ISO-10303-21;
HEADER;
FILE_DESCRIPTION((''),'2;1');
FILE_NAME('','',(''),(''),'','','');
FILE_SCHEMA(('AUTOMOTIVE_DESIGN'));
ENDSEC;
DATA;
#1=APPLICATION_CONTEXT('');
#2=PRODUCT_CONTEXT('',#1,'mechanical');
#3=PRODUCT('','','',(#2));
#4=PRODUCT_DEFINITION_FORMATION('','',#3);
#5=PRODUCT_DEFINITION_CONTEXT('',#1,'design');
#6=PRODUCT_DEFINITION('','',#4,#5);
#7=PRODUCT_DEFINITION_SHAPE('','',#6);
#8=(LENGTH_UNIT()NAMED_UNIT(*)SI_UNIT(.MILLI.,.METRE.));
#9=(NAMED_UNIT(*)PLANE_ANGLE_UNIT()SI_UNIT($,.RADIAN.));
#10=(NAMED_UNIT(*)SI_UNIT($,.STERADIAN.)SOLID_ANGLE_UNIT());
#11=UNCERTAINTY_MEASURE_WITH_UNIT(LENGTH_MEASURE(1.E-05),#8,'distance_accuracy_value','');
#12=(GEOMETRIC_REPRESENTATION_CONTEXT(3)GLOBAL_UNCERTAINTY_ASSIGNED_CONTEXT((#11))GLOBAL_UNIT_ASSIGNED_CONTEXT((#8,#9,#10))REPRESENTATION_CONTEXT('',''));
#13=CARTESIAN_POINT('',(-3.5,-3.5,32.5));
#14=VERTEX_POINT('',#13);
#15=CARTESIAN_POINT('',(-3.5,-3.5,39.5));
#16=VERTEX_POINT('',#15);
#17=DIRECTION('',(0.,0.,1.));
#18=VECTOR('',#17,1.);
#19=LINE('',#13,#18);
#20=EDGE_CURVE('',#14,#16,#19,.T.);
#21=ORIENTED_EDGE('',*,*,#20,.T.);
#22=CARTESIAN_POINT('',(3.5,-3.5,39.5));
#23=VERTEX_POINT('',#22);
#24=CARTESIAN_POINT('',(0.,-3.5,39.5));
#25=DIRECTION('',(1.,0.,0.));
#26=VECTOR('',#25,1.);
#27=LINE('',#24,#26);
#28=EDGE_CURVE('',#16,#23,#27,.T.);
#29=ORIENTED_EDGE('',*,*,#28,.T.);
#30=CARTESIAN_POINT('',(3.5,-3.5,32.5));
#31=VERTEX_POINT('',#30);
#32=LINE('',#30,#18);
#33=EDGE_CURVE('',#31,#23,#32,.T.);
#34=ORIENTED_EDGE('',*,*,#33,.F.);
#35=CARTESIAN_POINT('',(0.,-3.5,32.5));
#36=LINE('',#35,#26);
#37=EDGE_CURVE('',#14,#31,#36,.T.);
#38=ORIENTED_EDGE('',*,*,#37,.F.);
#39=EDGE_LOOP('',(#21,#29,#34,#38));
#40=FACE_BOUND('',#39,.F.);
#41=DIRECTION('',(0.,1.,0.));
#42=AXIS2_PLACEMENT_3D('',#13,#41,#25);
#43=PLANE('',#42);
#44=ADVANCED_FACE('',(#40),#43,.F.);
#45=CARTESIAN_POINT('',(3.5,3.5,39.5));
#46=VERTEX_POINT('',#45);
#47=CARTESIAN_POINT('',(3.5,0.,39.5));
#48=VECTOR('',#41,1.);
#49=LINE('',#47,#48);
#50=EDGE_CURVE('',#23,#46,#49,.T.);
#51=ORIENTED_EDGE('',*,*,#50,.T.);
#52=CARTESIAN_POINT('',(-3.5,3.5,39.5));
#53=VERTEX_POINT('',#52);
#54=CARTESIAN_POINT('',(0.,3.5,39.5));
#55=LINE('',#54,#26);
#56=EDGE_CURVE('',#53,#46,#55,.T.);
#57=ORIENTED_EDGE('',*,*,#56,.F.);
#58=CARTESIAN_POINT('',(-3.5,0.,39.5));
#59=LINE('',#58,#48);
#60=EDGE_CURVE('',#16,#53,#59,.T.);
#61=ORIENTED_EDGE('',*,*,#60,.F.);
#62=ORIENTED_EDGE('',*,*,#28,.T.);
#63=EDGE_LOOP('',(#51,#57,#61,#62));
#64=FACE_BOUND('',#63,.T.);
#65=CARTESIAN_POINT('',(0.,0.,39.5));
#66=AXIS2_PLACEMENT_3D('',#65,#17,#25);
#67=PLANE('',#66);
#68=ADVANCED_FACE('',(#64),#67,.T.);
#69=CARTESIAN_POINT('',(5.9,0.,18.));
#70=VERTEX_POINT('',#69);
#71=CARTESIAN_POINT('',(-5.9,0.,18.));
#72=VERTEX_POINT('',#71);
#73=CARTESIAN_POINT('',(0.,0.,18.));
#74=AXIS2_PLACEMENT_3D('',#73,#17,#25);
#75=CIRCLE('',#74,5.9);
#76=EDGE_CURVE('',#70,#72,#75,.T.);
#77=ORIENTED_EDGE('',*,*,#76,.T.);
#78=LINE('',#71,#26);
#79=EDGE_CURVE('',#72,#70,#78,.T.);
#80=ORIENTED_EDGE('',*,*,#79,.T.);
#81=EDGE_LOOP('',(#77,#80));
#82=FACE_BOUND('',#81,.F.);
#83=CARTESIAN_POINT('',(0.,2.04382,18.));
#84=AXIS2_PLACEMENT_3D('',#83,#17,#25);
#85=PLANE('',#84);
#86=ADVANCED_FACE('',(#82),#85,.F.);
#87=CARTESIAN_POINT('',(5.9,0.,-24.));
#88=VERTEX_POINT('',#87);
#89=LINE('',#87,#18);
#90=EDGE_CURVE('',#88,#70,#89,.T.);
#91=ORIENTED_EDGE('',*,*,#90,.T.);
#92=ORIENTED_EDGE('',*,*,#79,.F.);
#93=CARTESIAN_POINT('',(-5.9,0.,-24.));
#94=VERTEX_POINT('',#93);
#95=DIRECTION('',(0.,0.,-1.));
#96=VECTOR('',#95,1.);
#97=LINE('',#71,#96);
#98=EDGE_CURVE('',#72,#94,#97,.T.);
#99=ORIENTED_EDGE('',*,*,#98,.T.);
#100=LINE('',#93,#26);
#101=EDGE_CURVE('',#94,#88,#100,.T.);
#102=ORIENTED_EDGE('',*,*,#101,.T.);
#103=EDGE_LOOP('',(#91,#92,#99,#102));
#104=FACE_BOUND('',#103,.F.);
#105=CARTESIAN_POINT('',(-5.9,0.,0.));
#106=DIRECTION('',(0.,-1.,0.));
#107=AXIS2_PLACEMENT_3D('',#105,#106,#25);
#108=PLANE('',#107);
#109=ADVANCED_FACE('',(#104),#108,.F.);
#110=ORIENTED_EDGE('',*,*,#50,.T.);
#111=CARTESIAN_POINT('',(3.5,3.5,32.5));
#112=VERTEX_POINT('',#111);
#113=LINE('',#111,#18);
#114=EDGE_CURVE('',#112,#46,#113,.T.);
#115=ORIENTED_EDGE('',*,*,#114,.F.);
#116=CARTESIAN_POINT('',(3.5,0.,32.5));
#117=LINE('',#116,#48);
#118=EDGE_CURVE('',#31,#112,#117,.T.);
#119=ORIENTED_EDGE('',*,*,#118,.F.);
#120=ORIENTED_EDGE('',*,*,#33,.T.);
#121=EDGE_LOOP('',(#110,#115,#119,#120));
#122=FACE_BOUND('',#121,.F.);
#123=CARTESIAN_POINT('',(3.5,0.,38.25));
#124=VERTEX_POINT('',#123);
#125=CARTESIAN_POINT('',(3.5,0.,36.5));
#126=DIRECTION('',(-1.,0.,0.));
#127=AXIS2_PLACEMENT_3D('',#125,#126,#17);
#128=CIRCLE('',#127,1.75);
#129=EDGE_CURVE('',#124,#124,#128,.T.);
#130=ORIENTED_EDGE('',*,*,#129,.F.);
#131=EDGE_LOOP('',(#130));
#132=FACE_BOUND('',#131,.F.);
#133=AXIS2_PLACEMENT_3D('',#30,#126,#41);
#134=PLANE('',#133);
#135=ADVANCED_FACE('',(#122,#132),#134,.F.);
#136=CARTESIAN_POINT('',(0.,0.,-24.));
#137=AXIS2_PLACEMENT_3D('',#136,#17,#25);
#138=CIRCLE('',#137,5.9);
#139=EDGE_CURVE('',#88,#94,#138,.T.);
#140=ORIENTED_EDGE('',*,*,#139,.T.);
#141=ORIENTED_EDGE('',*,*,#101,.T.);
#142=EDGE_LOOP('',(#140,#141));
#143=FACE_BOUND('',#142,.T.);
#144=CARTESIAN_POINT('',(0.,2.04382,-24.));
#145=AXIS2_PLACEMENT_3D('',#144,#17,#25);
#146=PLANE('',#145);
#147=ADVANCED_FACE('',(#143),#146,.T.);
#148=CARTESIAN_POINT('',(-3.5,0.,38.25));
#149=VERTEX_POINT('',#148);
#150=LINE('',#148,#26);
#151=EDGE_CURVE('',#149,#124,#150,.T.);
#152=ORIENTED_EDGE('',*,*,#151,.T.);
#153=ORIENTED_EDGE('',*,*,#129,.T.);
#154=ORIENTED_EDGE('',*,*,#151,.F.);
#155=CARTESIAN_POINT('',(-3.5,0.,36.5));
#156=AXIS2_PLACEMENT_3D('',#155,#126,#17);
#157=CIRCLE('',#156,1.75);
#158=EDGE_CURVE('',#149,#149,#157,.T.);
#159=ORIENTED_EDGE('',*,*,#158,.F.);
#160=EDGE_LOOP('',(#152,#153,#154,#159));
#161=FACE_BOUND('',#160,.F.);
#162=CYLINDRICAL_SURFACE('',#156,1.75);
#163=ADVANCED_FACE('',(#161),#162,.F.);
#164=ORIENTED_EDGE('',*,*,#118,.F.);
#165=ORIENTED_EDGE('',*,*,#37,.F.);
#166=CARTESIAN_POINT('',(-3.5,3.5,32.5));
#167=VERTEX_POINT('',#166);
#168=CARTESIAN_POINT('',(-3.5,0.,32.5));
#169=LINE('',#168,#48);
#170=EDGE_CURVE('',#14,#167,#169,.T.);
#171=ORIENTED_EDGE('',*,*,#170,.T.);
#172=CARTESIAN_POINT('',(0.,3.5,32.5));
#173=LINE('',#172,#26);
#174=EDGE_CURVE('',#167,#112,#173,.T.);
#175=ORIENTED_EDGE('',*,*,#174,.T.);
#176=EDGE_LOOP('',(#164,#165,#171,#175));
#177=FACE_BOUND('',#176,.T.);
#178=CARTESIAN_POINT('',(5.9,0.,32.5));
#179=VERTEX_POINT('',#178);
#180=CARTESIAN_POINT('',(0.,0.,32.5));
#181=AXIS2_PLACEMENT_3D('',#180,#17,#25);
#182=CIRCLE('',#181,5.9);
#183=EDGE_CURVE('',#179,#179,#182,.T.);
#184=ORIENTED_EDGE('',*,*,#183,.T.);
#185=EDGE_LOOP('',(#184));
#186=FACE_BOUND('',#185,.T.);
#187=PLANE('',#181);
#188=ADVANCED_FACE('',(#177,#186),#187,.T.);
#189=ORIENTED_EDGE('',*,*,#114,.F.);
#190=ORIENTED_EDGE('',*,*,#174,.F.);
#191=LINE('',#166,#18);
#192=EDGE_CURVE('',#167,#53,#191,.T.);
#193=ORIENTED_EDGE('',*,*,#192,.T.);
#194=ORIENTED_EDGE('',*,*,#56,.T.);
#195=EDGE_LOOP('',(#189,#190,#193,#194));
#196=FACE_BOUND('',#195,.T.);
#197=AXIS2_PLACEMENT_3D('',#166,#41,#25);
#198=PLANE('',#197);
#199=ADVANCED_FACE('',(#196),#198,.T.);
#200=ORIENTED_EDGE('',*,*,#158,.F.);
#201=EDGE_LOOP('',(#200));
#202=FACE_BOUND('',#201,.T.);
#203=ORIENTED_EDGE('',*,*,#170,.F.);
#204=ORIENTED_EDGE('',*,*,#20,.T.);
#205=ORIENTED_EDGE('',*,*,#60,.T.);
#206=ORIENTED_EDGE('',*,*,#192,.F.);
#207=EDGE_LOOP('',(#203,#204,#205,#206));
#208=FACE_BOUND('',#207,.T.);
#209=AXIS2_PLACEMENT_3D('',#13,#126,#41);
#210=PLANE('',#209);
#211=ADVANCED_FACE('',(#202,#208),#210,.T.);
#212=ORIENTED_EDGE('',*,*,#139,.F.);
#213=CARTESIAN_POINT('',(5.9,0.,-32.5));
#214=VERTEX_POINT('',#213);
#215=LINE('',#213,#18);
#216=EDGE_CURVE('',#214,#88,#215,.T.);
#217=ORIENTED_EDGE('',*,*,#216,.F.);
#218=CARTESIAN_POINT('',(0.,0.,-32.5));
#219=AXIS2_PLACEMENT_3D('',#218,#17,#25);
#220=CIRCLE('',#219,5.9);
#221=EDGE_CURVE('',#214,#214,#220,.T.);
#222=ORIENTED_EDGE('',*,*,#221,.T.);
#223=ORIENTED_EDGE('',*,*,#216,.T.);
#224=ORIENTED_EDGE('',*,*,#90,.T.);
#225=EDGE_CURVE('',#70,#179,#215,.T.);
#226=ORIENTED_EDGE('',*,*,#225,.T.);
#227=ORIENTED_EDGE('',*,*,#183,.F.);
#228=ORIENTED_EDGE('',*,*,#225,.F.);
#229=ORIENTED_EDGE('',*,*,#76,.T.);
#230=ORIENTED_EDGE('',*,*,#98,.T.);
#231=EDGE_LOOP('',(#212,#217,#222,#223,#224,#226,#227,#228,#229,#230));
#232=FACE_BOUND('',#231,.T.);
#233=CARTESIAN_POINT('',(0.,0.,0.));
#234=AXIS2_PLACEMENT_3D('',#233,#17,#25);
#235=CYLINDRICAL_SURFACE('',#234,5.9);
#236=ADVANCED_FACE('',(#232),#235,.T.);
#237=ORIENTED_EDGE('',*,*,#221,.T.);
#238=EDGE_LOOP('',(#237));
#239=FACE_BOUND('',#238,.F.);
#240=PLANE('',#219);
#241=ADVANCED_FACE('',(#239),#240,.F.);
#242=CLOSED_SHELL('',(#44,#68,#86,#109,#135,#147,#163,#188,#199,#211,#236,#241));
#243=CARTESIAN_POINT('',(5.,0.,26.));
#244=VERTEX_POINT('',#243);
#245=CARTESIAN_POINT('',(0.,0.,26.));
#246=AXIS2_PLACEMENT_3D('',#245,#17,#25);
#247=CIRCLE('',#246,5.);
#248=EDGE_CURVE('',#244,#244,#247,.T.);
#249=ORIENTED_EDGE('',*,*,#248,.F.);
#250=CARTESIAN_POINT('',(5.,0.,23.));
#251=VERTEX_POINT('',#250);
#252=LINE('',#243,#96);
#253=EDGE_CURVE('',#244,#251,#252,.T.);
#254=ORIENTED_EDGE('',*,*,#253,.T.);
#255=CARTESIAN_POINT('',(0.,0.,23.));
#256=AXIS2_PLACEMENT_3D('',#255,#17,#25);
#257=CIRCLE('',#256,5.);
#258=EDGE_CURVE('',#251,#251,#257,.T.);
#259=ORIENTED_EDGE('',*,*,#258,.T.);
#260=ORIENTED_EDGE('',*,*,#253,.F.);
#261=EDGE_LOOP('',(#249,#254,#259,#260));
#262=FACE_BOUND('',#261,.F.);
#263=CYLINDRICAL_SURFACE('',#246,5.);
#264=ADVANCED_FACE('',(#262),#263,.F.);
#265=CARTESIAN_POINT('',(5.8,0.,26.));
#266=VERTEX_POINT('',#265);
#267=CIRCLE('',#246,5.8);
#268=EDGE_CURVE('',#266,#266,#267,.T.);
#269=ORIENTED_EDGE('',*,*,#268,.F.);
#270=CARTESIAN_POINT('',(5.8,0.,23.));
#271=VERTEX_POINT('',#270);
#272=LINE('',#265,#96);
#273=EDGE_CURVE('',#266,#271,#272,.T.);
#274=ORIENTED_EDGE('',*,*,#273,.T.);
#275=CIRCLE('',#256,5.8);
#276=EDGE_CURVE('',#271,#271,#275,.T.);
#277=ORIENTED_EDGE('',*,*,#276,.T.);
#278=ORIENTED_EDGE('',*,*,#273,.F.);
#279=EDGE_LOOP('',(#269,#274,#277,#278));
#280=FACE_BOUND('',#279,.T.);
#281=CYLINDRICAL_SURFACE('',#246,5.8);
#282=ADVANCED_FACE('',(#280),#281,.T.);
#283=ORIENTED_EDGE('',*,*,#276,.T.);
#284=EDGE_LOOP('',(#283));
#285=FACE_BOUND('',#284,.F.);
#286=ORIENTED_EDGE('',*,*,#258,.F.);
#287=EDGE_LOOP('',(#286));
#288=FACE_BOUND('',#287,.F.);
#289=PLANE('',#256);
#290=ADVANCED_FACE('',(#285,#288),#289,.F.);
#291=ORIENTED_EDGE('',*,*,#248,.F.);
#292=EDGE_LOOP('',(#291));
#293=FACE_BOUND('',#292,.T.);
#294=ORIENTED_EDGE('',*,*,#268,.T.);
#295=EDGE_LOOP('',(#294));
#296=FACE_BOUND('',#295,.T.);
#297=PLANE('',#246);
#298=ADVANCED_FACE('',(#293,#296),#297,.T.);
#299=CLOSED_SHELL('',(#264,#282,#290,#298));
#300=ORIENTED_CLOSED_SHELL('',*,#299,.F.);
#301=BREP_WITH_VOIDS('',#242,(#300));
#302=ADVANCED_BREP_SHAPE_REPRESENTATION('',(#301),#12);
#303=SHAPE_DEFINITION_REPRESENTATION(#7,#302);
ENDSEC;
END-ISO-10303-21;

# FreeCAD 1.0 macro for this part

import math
import FreeCAD as App
import Part
import Sketcher
from FreeCAD import Vector

doc = App.newDocument("Part")
body = doc.addObject("PartDesign::Body", "Body")

# Sketch on XY plane
sketch1 = body.newObject("Sketcher::SketchObject", "Sketch")
sketch1.AttachmentSupport = (doc.getObject("XY_Plane"), [""])
sketch1.MapMode = "FlatFace"
sketch1.addGeometry(Part.Circle(Vector(0, 0, 0), Vector(0, 0, 1), 6), False)
sketch1.addConstraint([
    Sketcher.Constraint("Coincident", 0, 3, -1, 1),
    Sketcher.Constraint("Diameter", 0, 11.8),
])
pad1 = body.newObject("PartDesign::Pad", "Pad")
pad1.Profile = sketch1
pad1.Length = 65
pad1.Midplane = True

# Sketch on XY plane
sketch2 = body.newObject("Sketcher::SketchObject", "Sketch001")
sketch2.AttachmentSupport = (doc.getObject("XY_Plane"), [""])
sketch2.MapMode = "FlatFace"
sketch2.addGeometry([
    Part.LineSegment(Vector(-6, 0, 0), Vector(6, 0, 0)),
    Part.ArcOfCircle(Part.Circle(Vector(0, 0, 0), Vector(0, 0, 1), 6), math.radians(0), math.radians(180)),
], False)
sketch2.addConstraint([
    Sketcher.Constraint("Coincident", 0, 1, 1, 2),
    Sketcher.Constraint("Coincident", 1, 1, 0, 2),
    Sketcher.Constraint("Horizontal", 0),
    Sketcher.Constraint("Coincident", 1, 3, -1, 1),
    Sketcher.Constraint("PointOnObject", 0, 1, -1),
    Sketcher.Constraint("Radius", 1, 5.9),
])
pocket1 = body.newObject("PartDesign::Pocket", "Pocket")
pocket1.Profile = sketch2
pocket1.Length = 24

# Sketch on XY plane
sketch3 = body.newObject("Sketcher::SketchObject", "Sketch002")
sketch3.AttachmentSupport = (doc.getObject("XY_Plane"), [""])
sketch3.MapMode = "FlatFace"
sketch3.AttachmentOffset = App.Placement(Vector(0, 0, 26), App.Rotation())
sketch3.addGeometry([
    Part.Circle(Vector(0, 0, 0), Vector(0, 0, 1), 6),
    Part.Circle(Vector(0, 0, 0), Vector(0, 0, 1), 5),
], False)
sketch3.addConstraint([
    Sketcher.Constraint("Coincident", 0, 3, -1, 1),
    Sketcher.Constraint("Coincident", 1, 3, -1, 1),
    Sketcher.Constraint("Diameter", 1, 10.0),
    Sketcher.Constraint("Diameter", 0, 11.6),
])
pocket2 = body.newObject("PartDesign::Pocket", "Pocket001")
pocket2.Profile = sketch3
pocket2.Length = 3

# Sketch on XY plane
sketch4 = body.newObject("Sketcher::SketchObject", "Sketch003")
sketch4.AttachmentSupport = (doc.getObject("XY_Plane"), [""])
sketch4.MapMode = "FlatFace"
sketch4.AttachmentOffset = App.Placement(Vector(0, 0, 32.5), App.Rotation())
sketch4.addGeometry([
    Part.LineSegment(Vector(-4, 4, 0), Vector(-4, -4, 0)),
    Part.LineSegment(Vector(-4, -4, 0), Vector(4, -4, 0)),
    Part.LineSegment(Vector(4, -4, 0), Vector(4, 4, 0)),
    Part.LineSegment(Vector(4, 4, 0), Vector(-4, 4, 0)),
], False)
sketch4.addConstraint([
    Sketcher.Constraint("Coincident", 0, 2, 1, 1),
    Sketcher.Constraint("Coincident", 1, 2, 2, 1),
    Sketcher.Constraint("Coincident", 2, 2, 3, 1),
    Sketcher.Constraint("Coincident", 3, 2, 0, 1),
    Sketcher.Constraint("Vertical", 0),
    Sketcher.Constraint("Horizontal", 1),
    Sketcher.Constraint("Vertical", 2),
    Sketcher.Constraint("Horizontal", 3),
    Sketcher.Constraint("Symmetric", 0, 2, 2, 2, -1, 1),
    Sketcher.Constraint("Equal", 3, 0),
    Sketcher.Constraint("DistanceX", 1, 1, 1, 2, 7.0),
])
pad2 = body.newObject("PartDesign::Pad", "Pad001")
pad2.Profile = sketch4
pad2.Length = 7

# Sketch on YZ plane
sketch5 = body.newObject("Sketcher::SketchObject", "Sketch004")
sketch5.AttachmentSupport = (doc.getObject("YZ_Plane"), [""])
sketch5.MapMode = "FlatFace"
sketch5.AttachmentOffset = App.Placement(Vector(0, 0, -3.5), App.Rotation())
sketch5.addGeometry(Part.Circle(Vector(0, 36.5, 0), Vector(0, 0, 1), 1.8), False)
sketch5.addConstraint([
    Sketcher.Constraint("PointOnObject", 0, 3, -2),
    Sketcher.Constraint("Diameter", 0, 3.5),
    Sketcher.Constraint("DistanceY", -1, 1, 0, 3, 36.5),
])
pocket3 = body.newObject("PartDesign::Pocket", "Pocket002")
pocket3.Profile = sketch5
pocket3.Type = "ThroughAll"
pocket3.Reversed = True

# Sketch on XY plane
sketch6 = body.newObject("Sketcher::SketchObject", "Sketch005")
sketch6.AttachmentSupport = (doc.getObject("XY_Plane"), [""])
sketch6.MapMode = "FlatFace"
sketch6.addGeometry([
    Part.LineSegment(Vector(-6, 0, 0), Vector(6, 0, 0)),
    Part.ArcOfCircle(Part.Circle(Vector(0, 0, 0), Vector(0, 0, 1), 6), math.radians(0), math.radians(180)),
], False)
sketch6.addConstraint([
    Sketcher.Constraint("Coincident", 0, 1, 1, 2),
    Sketcher.Constraint("Coincident", 1, 1, 0, 2),
    Sketcher.Constraint("Horizontal", 0),
    Sketcher.Constraint("Coincident", 1, 3, -1, 1),
    Sketcher.Constraint("PointOnObject", 0, 1, -1),
    Sketcher.Constraint("Radius", 1, 5.9),
])
pocket4 = body.newObject("PartDesign::Pocket", "Pocket003")
pocket4.Profile = sketch6
pocket4.Length = 18
pocket4.Reversed = True

doc.recompute()
